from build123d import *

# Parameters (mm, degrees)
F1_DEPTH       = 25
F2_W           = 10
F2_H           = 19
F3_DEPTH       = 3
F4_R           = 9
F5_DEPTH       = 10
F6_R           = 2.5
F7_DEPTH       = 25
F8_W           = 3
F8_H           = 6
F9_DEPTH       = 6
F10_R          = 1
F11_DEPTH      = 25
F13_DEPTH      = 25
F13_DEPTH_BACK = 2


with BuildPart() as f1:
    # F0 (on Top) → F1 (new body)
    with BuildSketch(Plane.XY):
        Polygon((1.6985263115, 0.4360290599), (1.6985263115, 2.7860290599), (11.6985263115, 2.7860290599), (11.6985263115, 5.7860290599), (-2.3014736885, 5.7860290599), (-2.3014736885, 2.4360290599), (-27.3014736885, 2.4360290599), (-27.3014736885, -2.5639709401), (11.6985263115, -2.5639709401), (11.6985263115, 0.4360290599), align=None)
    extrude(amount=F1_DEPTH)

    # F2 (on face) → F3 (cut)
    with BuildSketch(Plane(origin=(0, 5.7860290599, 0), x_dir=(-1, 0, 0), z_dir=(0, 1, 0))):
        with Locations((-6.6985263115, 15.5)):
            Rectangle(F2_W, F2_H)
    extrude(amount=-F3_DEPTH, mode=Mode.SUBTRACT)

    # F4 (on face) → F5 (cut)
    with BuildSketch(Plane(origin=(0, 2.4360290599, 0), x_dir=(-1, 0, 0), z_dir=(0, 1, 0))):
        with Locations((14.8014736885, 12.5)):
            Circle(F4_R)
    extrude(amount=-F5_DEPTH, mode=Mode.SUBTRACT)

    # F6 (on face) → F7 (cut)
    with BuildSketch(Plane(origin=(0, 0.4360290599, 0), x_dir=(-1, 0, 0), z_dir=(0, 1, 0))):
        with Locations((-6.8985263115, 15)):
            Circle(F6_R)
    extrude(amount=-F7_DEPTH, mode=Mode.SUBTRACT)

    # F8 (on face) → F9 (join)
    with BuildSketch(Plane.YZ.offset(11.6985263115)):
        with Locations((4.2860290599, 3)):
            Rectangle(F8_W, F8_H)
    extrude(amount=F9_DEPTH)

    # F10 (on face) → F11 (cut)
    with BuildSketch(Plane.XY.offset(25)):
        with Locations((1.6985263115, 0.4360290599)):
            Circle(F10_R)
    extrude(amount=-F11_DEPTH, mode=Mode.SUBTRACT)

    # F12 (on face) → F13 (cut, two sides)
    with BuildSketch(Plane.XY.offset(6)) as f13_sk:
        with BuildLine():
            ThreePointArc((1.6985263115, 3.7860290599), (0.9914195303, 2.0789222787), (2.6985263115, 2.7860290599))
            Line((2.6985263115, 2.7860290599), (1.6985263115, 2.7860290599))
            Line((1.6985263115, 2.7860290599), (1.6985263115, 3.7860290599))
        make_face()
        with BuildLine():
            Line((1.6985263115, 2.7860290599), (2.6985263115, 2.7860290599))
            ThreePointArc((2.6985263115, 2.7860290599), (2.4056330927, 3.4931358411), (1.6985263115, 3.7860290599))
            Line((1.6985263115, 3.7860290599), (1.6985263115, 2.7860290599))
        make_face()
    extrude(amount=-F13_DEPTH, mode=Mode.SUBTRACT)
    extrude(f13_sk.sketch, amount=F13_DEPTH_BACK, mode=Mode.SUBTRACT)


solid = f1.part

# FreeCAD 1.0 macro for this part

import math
import FreeCAD as App
import Part
import Sketcher
from FreeCAD import Vector


def add_polygon(sketch, points):
    """Adds a closed chain of lines whose ends are joined by coincident constraints."""
    first, n = sketch.GeometryCount, len(points)
    for a, b in zip(points, points[1:] + points[:1]):
        sketch.addGeometry(Part.LineSegment(App.Vector(*a, 0), App.Vector(*b, 0)), False)
    for i in range(n):
        sketch.addConstraint(Sketcher.Constraint("Coincident", first + i, 2, first + (i + 1) % n, 1))

doc = App.newDocument("Part")
params = doc.addObject("Spreadsheet::Sheet", "Params")
for row, (alias, value) in enumerate([
    ("sketch1_width", "10 mm"),
    ("sketch1_width2", "14 mm"),
    ("sketch1_width3", "25 mm"),
    ("sketch1_height", "3 mm"),
    ("sketch1_height2", "5 mm"),
    ("pad1_length", "25 mm"),
    ("sketch2_width", "10 mm"),
    ("sketch2_height", "19 mm"),
    ("pocket1_length", "3 mm"),
    ("sketch3_diameter", "18 mm"),
    ("pocket2_length", "10 mm"),
    ("sketch4_diameter", "5 mm"),
    ("pocket3_length", "25 mm"),
    ("sketch5_width", "3 mm"),
    ("sketch5_height", "6 mm"),
    ("pad2_length", "6 mm"),
    ("sketch6_diameter", "2 mm"),
    ("pocket4_length", "25 mm"),
    ("sketch7_radius", "1 mm"),
    ("pocket5_length", "25 mm"),
    ("pocket5_length2", "2 mm"),
], start=1):
    params.set(f"A{row}", alias)
    params.set(f"B{row}", "=" + value)
    params.setAlias(f"B{row}", alias)

body = doc.addObject("PartDesign::Body", "Body")

# Sketch on XY plane
sketch1 = body.newObject("Sketcher::SketchObject", "Sketch")
sketch1.AttachmentSupport = (doc.getObject("XY_Plane"), [""])
sketch1.MapMode = "FlatFace"
add_polygon(sketch1, [(1.698526, 0.436029), (1.698526, 2.786029), (11.698526, 2.786029), (11.698526, 5.786029), (-2.301474, 5.786029), (-2.301474, 2.436029), (-27.301474, 2.436029), (-27.301474, -2.563971), (11.698526, -2.563971), (11.698526, 0.436029)])  # lines 0-9
sketch1.addConstraint([
    Sketcher.Constraint("Vertical", 0),
    Sketcher.Constraint("Horizontal", 1),
    Sketcher.Constraint("Vertical", 2),
    Sketcher.Constraint("Horizontal", 3),
    Sketcher.Constraint("Vertical", 4),
    Sketcher.Constraint("Horizontal", 5),
    Sketcher.Constraint("Vertical", 6),
    Sketcher.Constraint("Horizontal", 7),
    Sketcher.Constraint("Vertical", 8),
    Sketcher.Constraint("Horizontal", 9),
    Sketcher.Constraint("Vertical", 2, 2, 7, 2),
    Sketcher.Constraint("Equal", 2, 8),
    Sketcher.Constraint("DistanceX", 1, 1, 1, 2, 10.0),
    Sketcher.Constraint("DistanceX", 3, 2, 3, 1, 14.0),
    Sketcher.Constraint("DistanceX", 5, 2, 5, 1, 25.0),
    Sketcher.Constraint("DistanceY", 2, 1, 2, 2, 3.0),
    Sketcher.Constraint("DistanceY", 6, 2, 6, 1, 5.0),
    Sketcher.Constraint("DistanceY", 0, 1, 0, 2, 2.35),
    Sketcher.Constraint("DistanceY", -1, 1, 0, 2, 2.786029),
    Sketcher.Constraint("DistanceX", -1, 1, 0, 2, 1.698526),
])
sketch1.setExpression("Constraints[22]", "Params.sketch1_width")
sketch1.setExpression("Constraints[23]", "Params.sketch1_width2")
sketch1.setExpression("Constraints[24]", "Params.sketch1_width3")
sketch1.setExpression("Constraints[25]", "Params.sketch1_height")
sketch1.setExpression("Constraints[26]", "Params.sketch1_height2")
pad1 = body.newObject("PartDesign::Pad", "Pad")
pad1.Profile = sketch1
pad1.setExpression("Length", "Params.pad1_length")

# Sketch on XZ plane
sketch2 = body.newObject("Sketcher::SketchObject", "Sketch001")
sketch2.AttachmentSupport = (doc.getObject("XZ_Plane"), [""])
sketch2.MapMode = "FlatFace"
sketch2.AttachmentOffset = App.Placement(Vector(0, 0, -5.786029), App.Rotation())
add_polygon(sketch2, [(11.698526, 25), (11.698526, 6), (1.698526, 6), (1.698526, 25)])  # lines 0-3
sketch2.addConstraint([
    Sketcher.Constraint("Vertical", 0),
    Sketcher.Constraint("Horizontal", 1),
    Sketcher.Constraint("Vertical", 2),
    Sketcher.Constraint("Horizontal", 3),
    Sketcher.Constraint("DistanceX", 1, 2, 1, 1, 10.0),
    Sketcher.Constraint("DistanceY", 0, 2, 0, 1, 19.0),
    Sketcher.Constraint("DistanceY", -1, 1, 0, 2, 6.0),
    Sketcher.Constraint("DistanceX", -1, 1, 0, 2, 11.698526),
])
sketch2.setExpression("Constraints[8]", "Params.sketch2_width")
sketch2.setExpression("Constraints[9]", "Params.sketch2_height")
pocket1 = body.newObject("PartDesign::Pocket", "Pocket")
pocket1.Profile = sketch2
pocket1.setExpression("Length", "Params.pocket1_length")
pocket1.Reversed = True

# Sketch on XZ plane
sketch3 = body.newObject("Sketcher::SketchObject", "Sketch002")
sketch3.AttachmentSupport = (doc.getObject("XZ_Plane"), [""])
sketch3.MapMode = "FlatFace"
sketch3.AttachmentOffset = App.Placement(Vector(0, 0, -2.436029), App.Rotation())
sketch3.addGeometry(Part.Circle(Vector(-14.801474, 12.5, 0), Vector(0, 0, 1), 9), False)
sketch3.addConstraint([
    Sketcher.Constraint("Diameter", 0, 18.0),
    Sketcher.Constraint("DistanceY", -1, 1, 0, 3, 12.5),
    Sketcher.Constraint("DistanceX", 0, 3, -1, 1, 14.801474),
])
sketch3.setExpression("Constraints[0]", "Params.sketch3_diameter")
pocket2 = body.newObject("PartDesign::Pocket", "Pocket001")
pocket2.Profile = sketch3
pocket2.setExpression("Length", "Params.pocket2_length")
pocket2.Reversed = True

# Sketch on XZ plane
sketch4 = body.newObject("Sketcher::SketchObject", "Sketch003")
sketch4.AttachmentSupport = (doc.getObject("XZ_Plane"), [""])
sketch4.MapMode = "FlatFace"
sketch4.AttachmentOffset = App.Placement(Vector(0, 0, -0.436029), App.Rotation())
sketch4.addGeometry(Part.Circle(Vector(6.898526, 15, 0), Vector(0, 0, 1), 2.5), False)
sketch4.addConstraint([
    Sketcher.Constraint("Diameter", 0, 5.0),
    Sketcher.Constraint("DistanceY", -1, 1, 0, 3, 15.0),
    Sketcher.Constraint("DistanceX", -1, 1, 0, 3, 6.898526),
])
sketch4.setExpression("Constraints[0]", "Params.sketch4_diameter")
pocket3 = body.newObject("PartDesign::Pocket", "Pocket002")
pocket3.Profile = sketch4
pocket3.setExpression("Length", "Params.pocket3_length")
pocket3.Reversed = True

# Sketch on YZ plane
sketch5 = body.newObject("Sketcher::SketchObject", "Sketch004")
sketch5.AttachmentSupport = (doc.getObject("YZ_Plane"), [""])
sketch5.MapMode = "FlatFace"
sketch5.AttachmentOffset = App.Placement(Vector(0, 0, 11.698526), App.Rotation())
add_polygon(sketch5, [(2.786029, 6), (2.786029, 0), (5.786029, 0), (5.786029, 6)])  # lines 0-3
sketch5.addConstraint([
    Sketcher.Constraint("Vertical", 0),
    Sketcher.Constraint("Horizontal", 1),
    Sketcher.Constraint("Vertical", 2),
    Sketcher.Constraint("Horizontal", 3),
    Sketcher.Constraint("PointOnObject", 0, 2, -1),
    Sketcher.Constraint("DistanceX", 1, 1, 1, 2, 3.0),
    Sketcher.Constraint("DistanceY", 0, 2, 0, 1, 6.0),
    Sketcher.Constraint("DistanceX", -1, 1, 0, 2, 2.786029),
])
sketch5.setExpression("Constraints[9]", "Params.sketch5_width")
sketch5.setExpression("Constraints[10]", "Params.sketch5_height")
pad2 = body.newObject("PartDesign::Pad", "Pad001")
pad2.Profile = sketch5
pad2.setExpression("Length", "Params.pad2_length")

# Sketch on XY plane
sketch6 = body.newObject("Sketcher::SketchObject", "Sketch005")
sketch6.AttachmentSupport = (doc.getObject("XY_Plane"), [""])
sketch6.MapMode = "FlatFace"
sketch6.AttachmentOffset = App.Placement(Vector(0, 0, 25), App.Rotation())
sketch6.addGeometry(Part.Circle(Vector(1.698526, 0.436029, 0), Vector(0, 0, 1), 1), False)
sketch6.addConstraint([
    Sketcher.Constraint("Diameter", 0, 2.0),
    Sketcher.Constraint("DistanceY", -1, 1, 0, 3, 0.436029),
    Sketcher.Constraint("DistanceX", -1, 1, 0, 3, 1.698526),
])
sketch6.setExpression("Constraints[0]", "Params.sketch6_diameter")
pocket4 = body.newObject("PartDesign::Pocket", "Pocket003")
pocket4.Profile = sketch6
pocket4.setExpression("Length", "Params.pocket4_length")

# Sketch on XY plane
sketch7 = body.newObject("Sketcher::SketchObject", "Sketch006")
sketch7.AttachmentSupport = (doc.getObject("XY_Plane"), [""])
sketch7.MapMode = "FlatFace"
sketch7.AttachmentOffset = App.Placement(Vector(0, 0, 6), App.Rotation())
sketch7.addGeometry([
    Part.ArcOfCircle(Part.Circle(Vector(1.698526, 2.786029, 0), Vector(0, 0, 1), 1), math.radians(90), math.radians(360)),
    Part.ArcOfCircle(Part.Circle(Vector(1.698526, 2.786029, 0), Vector(0, 0, 1), 1), math.radians(0), math.radians(90)),
], False)
sketch7.addConstraint([
    Sketcher.Constraint("Tangent", 0, 1, 1, 2),
    Sketcher.Constraint("Coincident", 1, 1, 0, 2),
    Sketcher.Constraint("Horizontal", 0, 3, 1, 1),
    Sketcher.Constraint("Vertical", 1, 3, 0, 1),
    Sketcher.Constraint("Radius", 0, 1.0),
    Sketcher.Constraint("DistanceY", -1, 1, 0, 3, 2.786029),
    Sketcher.Constraint("DistanceX", -1, 1, 0, 3, 1.698526),
])
sketch7.setExpression("Constraints[4]", "Params.sketch7_radius")
pocket5 = body.newObject("PartDesign::Pocket", "Pocket004")
pocket5.Profile = sketch7
pocket5.Type = "TwoLengths"
pocket5.setExpression("Length", "Params.pocket5_length")
pocket5.setExpression("Length2", "Params.pocket5_length2")

doc.recompute()
